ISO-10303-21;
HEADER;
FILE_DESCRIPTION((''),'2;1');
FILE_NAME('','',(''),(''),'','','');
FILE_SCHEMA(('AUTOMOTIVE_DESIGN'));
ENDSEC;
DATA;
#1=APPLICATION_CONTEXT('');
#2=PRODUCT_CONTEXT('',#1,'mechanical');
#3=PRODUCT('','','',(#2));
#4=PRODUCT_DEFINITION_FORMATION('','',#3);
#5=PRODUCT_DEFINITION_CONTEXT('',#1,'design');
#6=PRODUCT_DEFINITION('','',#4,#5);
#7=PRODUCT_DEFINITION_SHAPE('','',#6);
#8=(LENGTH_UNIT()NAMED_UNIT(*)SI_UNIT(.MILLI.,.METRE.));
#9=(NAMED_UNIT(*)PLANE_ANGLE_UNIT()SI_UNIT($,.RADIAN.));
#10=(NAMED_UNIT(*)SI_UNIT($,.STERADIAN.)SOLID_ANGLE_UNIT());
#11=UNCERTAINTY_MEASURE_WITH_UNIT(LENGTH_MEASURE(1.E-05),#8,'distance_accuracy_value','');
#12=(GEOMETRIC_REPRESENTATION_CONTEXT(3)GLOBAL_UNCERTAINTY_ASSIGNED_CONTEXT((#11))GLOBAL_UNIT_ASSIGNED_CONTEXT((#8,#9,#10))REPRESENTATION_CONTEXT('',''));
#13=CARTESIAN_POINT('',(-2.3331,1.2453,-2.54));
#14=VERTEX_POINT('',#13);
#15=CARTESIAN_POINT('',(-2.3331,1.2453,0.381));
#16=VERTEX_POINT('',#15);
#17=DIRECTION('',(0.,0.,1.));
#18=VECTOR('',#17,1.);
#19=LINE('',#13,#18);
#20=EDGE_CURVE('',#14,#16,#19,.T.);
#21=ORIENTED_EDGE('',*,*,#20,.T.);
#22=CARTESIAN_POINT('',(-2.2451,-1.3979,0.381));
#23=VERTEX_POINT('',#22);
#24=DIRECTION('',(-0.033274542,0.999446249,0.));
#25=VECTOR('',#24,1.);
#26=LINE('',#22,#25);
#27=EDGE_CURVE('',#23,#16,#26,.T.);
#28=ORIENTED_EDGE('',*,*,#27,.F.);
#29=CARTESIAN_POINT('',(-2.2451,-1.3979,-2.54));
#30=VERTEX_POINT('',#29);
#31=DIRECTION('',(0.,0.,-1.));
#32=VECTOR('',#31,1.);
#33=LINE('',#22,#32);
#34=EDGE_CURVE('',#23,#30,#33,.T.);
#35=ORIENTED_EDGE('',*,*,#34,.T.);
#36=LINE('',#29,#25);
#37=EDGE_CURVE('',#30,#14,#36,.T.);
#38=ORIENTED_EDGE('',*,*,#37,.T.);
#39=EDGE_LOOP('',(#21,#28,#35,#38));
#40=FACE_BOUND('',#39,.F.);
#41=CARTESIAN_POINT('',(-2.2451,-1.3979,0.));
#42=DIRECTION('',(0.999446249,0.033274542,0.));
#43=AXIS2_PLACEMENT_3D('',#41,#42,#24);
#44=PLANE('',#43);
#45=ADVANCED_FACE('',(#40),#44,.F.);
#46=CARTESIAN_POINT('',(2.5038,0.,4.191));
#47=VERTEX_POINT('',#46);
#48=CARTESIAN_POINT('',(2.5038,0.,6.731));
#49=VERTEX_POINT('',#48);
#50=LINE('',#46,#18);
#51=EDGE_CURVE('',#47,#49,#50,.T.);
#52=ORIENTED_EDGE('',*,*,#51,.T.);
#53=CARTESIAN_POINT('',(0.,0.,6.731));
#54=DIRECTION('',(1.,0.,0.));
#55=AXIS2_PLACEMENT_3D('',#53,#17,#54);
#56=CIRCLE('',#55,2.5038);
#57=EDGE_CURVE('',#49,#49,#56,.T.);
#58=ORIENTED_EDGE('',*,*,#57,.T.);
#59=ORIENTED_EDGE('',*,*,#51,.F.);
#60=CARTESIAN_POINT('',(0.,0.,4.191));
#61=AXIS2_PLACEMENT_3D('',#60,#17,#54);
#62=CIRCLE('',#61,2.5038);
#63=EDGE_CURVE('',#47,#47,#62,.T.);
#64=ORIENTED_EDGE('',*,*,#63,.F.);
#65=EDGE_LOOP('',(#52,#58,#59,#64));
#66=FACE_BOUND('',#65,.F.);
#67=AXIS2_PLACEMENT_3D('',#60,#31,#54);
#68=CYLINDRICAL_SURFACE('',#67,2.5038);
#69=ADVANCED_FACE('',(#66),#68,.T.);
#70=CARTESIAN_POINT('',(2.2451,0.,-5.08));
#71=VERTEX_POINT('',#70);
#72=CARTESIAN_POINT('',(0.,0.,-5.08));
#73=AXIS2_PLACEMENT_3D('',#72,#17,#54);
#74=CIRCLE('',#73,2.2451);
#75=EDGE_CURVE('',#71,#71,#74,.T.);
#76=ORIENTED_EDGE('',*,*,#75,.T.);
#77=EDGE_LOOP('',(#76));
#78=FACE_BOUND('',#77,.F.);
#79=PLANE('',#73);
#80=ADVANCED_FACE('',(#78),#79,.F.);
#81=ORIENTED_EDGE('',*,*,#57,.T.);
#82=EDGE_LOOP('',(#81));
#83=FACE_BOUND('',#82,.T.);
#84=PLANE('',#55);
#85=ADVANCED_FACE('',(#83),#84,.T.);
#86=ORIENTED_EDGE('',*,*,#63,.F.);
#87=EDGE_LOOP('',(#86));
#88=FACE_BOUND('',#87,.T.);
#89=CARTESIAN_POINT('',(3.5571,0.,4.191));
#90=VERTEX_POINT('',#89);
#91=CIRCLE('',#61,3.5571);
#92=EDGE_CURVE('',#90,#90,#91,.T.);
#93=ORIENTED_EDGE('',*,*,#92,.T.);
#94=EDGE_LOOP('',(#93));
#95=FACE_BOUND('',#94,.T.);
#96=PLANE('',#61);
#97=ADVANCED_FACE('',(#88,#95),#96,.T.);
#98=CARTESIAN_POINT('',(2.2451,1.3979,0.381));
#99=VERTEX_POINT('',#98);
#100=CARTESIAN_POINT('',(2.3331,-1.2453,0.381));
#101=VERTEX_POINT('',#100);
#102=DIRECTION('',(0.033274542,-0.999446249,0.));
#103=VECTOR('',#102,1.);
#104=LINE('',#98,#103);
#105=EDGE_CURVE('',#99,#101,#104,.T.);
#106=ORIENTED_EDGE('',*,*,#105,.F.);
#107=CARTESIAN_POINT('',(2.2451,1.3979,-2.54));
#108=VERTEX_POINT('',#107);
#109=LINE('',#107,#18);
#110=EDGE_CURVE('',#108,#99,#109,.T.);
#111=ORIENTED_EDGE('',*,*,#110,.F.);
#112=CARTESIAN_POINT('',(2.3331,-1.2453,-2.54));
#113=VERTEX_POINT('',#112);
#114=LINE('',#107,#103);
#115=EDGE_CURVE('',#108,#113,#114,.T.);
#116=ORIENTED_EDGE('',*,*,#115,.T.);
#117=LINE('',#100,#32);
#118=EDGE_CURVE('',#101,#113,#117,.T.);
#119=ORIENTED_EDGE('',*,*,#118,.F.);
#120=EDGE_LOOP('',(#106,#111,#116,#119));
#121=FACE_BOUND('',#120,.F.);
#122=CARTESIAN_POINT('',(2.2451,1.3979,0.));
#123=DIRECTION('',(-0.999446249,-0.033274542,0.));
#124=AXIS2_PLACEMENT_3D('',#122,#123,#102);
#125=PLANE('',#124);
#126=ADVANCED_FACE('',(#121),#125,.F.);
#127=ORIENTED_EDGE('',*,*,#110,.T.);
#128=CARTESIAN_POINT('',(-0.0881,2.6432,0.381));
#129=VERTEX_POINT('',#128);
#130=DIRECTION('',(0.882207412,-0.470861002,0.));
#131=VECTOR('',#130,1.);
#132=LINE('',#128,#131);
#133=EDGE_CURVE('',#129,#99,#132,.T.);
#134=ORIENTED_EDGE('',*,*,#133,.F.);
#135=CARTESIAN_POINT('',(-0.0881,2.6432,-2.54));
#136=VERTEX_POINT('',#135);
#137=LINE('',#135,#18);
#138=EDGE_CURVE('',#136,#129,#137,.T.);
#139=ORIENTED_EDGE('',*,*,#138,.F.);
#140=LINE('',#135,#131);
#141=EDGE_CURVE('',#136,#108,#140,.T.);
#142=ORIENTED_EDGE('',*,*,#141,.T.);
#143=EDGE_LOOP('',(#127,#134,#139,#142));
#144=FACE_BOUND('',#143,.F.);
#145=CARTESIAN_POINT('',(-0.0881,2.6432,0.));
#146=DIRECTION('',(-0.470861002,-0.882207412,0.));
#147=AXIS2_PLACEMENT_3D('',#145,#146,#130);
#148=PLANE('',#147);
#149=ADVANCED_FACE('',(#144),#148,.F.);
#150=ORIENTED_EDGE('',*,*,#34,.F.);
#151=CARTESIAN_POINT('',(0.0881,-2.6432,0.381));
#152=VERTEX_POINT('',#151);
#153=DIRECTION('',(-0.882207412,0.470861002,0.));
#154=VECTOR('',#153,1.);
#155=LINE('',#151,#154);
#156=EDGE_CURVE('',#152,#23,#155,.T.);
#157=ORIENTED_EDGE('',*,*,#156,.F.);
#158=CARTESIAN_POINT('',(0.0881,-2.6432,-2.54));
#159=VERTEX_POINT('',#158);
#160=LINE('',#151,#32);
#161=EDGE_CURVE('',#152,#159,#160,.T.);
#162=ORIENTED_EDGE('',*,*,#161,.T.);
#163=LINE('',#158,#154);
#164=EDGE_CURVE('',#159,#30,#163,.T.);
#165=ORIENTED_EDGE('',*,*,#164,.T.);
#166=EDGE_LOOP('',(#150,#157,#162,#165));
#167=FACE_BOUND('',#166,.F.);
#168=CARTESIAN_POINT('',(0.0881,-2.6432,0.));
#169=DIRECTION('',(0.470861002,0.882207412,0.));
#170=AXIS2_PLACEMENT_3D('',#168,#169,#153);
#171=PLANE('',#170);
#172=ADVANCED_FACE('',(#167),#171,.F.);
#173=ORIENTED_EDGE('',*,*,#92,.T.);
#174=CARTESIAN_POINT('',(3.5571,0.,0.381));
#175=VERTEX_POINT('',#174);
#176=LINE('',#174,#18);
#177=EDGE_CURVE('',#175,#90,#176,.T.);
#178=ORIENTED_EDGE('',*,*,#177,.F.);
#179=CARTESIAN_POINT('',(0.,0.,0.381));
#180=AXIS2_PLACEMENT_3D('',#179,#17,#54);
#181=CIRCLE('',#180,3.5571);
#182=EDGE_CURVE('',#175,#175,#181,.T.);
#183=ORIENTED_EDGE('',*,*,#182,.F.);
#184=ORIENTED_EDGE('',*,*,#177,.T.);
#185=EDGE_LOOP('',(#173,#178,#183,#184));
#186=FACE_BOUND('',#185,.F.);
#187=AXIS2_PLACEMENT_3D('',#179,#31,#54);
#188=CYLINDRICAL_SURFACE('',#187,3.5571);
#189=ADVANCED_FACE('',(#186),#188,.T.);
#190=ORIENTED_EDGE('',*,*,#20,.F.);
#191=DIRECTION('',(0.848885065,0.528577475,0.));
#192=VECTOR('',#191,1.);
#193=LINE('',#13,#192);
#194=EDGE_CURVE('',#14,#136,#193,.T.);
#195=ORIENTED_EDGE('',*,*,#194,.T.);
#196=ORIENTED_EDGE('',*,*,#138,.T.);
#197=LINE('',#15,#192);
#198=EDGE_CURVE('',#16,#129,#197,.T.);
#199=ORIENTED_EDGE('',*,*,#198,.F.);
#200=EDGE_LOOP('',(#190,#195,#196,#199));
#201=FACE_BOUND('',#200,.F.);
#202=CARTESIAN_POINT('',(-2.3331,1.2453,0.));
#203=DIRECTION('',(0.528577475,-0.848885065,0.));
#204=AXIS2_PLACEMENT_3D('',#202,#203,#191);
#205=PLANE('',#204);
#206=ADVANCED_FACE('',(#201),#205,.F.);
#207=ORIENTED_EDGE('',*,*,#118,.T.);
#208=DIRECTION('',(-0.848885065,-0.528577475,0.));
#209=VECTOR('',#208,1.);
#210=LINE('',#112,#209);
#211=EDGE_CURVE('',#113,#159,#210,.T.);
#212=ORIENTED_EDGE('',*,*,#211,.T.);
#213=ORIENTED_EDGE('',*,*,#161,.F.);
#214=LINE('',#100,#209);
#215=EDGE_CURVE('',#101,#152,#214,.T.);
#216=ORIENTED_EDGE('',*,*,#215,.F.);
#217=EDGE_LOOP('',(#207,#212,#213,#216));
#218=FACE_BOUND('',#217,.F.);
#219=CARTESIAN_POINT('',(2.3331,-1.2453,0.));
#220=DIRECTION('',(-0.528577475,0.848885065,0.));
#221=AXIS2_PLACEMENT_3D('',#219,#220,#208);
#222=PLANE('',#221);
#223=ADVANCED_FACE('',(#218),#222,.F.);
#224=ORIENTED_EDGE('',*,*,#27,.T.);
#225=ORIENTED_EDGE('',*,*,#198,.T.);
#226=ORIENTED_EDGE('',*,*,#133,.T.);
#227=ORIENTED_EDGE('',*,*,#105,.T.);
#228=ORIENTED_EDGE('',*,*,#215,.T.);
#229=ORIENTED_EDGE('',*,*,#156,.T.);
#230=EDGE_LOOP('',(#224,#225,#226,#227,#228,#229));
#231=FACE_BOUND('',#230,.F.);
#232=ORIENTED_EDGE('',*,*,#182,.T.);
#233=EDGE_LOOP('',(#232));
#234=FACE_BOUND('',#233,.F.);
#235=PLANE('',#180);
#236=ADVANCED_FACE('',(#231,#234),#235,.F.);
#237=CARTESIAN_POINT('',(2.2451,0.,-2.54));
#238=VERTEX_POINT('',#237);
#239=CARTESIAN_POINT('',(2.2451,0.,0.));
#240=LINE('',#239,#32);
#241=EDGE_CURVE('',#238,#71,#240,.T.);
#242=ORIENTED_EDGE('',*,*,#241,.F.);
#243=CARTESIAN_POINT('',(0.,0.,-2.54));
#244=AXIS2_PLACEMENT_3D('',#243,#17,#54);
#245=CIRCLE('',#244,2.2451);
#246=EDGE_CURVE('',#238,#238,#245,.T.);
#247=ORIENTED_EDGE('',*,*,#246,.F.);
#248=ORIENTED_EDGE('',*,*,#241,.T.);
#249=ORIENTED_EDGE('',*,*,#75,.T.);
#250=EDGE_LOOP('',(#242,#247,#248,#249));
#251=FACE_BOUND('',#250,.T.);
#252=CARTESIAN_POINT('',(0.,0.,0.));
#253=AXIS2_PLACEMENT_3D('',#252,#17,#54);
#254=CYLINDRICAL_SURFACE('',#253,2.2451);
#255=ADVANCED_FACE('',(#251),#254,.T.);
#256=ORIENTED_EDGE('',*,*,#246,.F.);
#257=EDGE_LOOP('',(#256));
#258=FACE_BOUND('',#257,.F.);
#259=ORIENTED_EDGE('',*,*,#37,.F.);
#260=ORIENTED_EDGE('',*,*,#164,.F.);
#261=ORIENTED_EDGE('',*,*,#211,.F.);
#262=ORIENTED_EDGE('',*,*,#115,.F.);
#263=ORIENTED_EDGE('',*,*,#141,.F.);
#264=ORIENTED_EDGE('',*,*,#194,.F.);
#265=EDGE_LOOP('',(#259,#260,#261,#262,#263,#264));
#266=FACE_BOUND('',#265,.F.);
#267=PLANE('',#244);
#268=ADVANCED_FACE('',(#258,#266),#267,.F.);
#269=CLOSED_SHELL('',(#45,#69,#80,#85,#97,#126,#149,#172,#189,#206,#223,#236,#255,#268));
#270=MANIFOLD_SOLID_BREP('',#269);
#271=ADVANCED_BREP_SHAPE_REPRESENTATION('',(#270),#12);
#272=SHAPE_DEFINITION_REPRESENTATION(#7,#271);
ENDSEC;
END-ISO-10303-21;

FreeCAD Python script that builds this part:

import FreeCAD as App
import Part
import Sketcher
from FreeCAD import Vector
Q = App.Units.Quantity


def add_polygon(sketch, points):
    """Adds a closed chain of lines whose ends are joined by coincident constraints."""
    first, n = sketch.GeometryCount, len(points)
    for a, b in zip(points, points[1:] + points[:1]):
        sketch.addGeometry(Part.LineSegment(App.Vector(*a, 0), App.Vector(*b, 0)), False)
    for i in range(n):
        sketch.addConstraint(Sketcher.Constraint("Coincident", first + i, 2, first + (i + 1) % n, 1))

doc = App.newDocument("Part")
body = doc.addObject("PartDesign::Body", "Body")

# Sketch on XY plane
sketch1 = body.newObject("Sketcher::SketchObject", "Sketch")
sketch1.AttachmentSupport = (doc.getObject("XY_Plane"), [""])
sketch1.MapMode = "FlatFace"
sketch1.addGeometry(Part.Circle(Vector(0, 0, 0), Vector(0, 0, 1), 2.2), False)
sketch1.addConstraint([
    Sketcher.Constraint("Coincident", 0, 3, -1, 1),
    Sketcher.Constraint("Diameter", 0, Q("4.4902 mm")),
])
pad1 = body.newObject("PartDesign::Pad", "Pad")
pad1.Profile = sketch1
pad1.Length = Q("0.2 in")
pad1.Reversed = True

# Sketch on XY plane
sketch2 = body.newObject("Sketcher::SketchObject", "Sketch001")
sketch2.AttachmentSupport = (doc.getObject("XY_Plane"), [""])
sketch2.MapMode = "FlatFace"
add_polygon(sketch2, [(2.3331, -1.2453), (2.2451, 1.3979), (-0.0881, 2.6432), (-2.3331, 1.2453), (-2.2451, -1.3979), (0.0881, -2.6432)])  # lines 0-5
sketch2.addConstraint([
    Sketcher.Constraint("DistanceY", 2, 2, 0, 2, Q("0.006 in")),
    Sketcher.Constraint("DistanceY", 3, 2, 5, 2, Q("0.006 in")),
    Sketcher.Constraint("DistanceX", -1, 1, 0, 2, Q("0.0884 in")),
    Sketcher.Constraint("DistanceX", 3, 2, -1, 1, Q("0.0884 in")),
    Sketcher.Constraint("DistanceY", 3, 2, 1, 2, Q("0.1591 in")),
    Sketcher.Constraint("DistanceY", 4, 2, 2, 2, Q("0.1531 in")),
    Sketcher.Constraint("DistanceX", 2, 2, 5, 2, Q("0.1837 in")),
    Sketcher.Constraint("Distance", 0, Q("2.6447 mm")),
    Sketcher.Constraint("Distance", 1, Q("2.6447 mm")),
    Sketcher.Constraint("Distance", 2, Q("2.6446 mm")),
    Sketcher.Constraint("Distance", 4, Q("2.6447 mm")),
    Sketcher.Constraint("DistanceY", -1, 1, 0, 2, Q("1.398 mm")),
])
pad2 = body.newObject("PartDesign::Pad", "Pad001")
pad2.Profile = sketch2
pad2.Type = "TwoLengths"
pad2.Length = Q("0.015 in")
pad2.Length2 = Q("0.1 in")

# Sketch on XY plane
sketch3 = body.newObject("Sketcher::SketchObject", "Sketch002")
sketch3.AttachmentSupport = (doc.getObject("XY_Plane"), [""])
sketch3.MapMode = "FlatFace"
sketch3.AttachmentOffset = App.Placement(Vector(0, 0, 0.015 * 25.4), App.Rotation())
sketch3.addGeometry(Part.Circle(Vector(0, 0, 0), Vector(0, 0, 1), 3.6), False)
sketch3.addConstraint([
    Sketcher.Constraint("Coincident", 0, 3, -1, 1),
    Sketcher.Constraint("Diameter", 0, Q("7.1142 mm")),
])
pad3 = body.newObject("PartDesign::Pad", "Pad002")
pad3.Profile = sketch3
pad3.Length = Q("0.15 in")

# Sketch on XY plane
sketch4 = body.newObject("Sketcher::SketchObject", "Sketch003")
sketch4.AttachmentSupport = (doc.getObject("XY_Plane"), [""])
sketch4.MapMode = "FlatFace"
sketch4.AttachmentOffset = App.Placement(Vector(0, 0, 0.165 * 25.4), App.Rotation())
sketch4.addGeometry(Part.Circle(Vector(0, 0, 0), Vector(0, 0, 1), 2.5), False)
sketch4.addConstraint([
    Sketcher.Constraint("Coincident", 0, 3, -1, 1),
    Sketcher.Constraint("Diameter", 0, Q("5.0076 mm")),
])
pad4 = body.newObject("PartDesign::Pad", "Pad003")
pad4.Profile = sketch4
pad4.Length = Q("0.1 in")

doc.recompute()
